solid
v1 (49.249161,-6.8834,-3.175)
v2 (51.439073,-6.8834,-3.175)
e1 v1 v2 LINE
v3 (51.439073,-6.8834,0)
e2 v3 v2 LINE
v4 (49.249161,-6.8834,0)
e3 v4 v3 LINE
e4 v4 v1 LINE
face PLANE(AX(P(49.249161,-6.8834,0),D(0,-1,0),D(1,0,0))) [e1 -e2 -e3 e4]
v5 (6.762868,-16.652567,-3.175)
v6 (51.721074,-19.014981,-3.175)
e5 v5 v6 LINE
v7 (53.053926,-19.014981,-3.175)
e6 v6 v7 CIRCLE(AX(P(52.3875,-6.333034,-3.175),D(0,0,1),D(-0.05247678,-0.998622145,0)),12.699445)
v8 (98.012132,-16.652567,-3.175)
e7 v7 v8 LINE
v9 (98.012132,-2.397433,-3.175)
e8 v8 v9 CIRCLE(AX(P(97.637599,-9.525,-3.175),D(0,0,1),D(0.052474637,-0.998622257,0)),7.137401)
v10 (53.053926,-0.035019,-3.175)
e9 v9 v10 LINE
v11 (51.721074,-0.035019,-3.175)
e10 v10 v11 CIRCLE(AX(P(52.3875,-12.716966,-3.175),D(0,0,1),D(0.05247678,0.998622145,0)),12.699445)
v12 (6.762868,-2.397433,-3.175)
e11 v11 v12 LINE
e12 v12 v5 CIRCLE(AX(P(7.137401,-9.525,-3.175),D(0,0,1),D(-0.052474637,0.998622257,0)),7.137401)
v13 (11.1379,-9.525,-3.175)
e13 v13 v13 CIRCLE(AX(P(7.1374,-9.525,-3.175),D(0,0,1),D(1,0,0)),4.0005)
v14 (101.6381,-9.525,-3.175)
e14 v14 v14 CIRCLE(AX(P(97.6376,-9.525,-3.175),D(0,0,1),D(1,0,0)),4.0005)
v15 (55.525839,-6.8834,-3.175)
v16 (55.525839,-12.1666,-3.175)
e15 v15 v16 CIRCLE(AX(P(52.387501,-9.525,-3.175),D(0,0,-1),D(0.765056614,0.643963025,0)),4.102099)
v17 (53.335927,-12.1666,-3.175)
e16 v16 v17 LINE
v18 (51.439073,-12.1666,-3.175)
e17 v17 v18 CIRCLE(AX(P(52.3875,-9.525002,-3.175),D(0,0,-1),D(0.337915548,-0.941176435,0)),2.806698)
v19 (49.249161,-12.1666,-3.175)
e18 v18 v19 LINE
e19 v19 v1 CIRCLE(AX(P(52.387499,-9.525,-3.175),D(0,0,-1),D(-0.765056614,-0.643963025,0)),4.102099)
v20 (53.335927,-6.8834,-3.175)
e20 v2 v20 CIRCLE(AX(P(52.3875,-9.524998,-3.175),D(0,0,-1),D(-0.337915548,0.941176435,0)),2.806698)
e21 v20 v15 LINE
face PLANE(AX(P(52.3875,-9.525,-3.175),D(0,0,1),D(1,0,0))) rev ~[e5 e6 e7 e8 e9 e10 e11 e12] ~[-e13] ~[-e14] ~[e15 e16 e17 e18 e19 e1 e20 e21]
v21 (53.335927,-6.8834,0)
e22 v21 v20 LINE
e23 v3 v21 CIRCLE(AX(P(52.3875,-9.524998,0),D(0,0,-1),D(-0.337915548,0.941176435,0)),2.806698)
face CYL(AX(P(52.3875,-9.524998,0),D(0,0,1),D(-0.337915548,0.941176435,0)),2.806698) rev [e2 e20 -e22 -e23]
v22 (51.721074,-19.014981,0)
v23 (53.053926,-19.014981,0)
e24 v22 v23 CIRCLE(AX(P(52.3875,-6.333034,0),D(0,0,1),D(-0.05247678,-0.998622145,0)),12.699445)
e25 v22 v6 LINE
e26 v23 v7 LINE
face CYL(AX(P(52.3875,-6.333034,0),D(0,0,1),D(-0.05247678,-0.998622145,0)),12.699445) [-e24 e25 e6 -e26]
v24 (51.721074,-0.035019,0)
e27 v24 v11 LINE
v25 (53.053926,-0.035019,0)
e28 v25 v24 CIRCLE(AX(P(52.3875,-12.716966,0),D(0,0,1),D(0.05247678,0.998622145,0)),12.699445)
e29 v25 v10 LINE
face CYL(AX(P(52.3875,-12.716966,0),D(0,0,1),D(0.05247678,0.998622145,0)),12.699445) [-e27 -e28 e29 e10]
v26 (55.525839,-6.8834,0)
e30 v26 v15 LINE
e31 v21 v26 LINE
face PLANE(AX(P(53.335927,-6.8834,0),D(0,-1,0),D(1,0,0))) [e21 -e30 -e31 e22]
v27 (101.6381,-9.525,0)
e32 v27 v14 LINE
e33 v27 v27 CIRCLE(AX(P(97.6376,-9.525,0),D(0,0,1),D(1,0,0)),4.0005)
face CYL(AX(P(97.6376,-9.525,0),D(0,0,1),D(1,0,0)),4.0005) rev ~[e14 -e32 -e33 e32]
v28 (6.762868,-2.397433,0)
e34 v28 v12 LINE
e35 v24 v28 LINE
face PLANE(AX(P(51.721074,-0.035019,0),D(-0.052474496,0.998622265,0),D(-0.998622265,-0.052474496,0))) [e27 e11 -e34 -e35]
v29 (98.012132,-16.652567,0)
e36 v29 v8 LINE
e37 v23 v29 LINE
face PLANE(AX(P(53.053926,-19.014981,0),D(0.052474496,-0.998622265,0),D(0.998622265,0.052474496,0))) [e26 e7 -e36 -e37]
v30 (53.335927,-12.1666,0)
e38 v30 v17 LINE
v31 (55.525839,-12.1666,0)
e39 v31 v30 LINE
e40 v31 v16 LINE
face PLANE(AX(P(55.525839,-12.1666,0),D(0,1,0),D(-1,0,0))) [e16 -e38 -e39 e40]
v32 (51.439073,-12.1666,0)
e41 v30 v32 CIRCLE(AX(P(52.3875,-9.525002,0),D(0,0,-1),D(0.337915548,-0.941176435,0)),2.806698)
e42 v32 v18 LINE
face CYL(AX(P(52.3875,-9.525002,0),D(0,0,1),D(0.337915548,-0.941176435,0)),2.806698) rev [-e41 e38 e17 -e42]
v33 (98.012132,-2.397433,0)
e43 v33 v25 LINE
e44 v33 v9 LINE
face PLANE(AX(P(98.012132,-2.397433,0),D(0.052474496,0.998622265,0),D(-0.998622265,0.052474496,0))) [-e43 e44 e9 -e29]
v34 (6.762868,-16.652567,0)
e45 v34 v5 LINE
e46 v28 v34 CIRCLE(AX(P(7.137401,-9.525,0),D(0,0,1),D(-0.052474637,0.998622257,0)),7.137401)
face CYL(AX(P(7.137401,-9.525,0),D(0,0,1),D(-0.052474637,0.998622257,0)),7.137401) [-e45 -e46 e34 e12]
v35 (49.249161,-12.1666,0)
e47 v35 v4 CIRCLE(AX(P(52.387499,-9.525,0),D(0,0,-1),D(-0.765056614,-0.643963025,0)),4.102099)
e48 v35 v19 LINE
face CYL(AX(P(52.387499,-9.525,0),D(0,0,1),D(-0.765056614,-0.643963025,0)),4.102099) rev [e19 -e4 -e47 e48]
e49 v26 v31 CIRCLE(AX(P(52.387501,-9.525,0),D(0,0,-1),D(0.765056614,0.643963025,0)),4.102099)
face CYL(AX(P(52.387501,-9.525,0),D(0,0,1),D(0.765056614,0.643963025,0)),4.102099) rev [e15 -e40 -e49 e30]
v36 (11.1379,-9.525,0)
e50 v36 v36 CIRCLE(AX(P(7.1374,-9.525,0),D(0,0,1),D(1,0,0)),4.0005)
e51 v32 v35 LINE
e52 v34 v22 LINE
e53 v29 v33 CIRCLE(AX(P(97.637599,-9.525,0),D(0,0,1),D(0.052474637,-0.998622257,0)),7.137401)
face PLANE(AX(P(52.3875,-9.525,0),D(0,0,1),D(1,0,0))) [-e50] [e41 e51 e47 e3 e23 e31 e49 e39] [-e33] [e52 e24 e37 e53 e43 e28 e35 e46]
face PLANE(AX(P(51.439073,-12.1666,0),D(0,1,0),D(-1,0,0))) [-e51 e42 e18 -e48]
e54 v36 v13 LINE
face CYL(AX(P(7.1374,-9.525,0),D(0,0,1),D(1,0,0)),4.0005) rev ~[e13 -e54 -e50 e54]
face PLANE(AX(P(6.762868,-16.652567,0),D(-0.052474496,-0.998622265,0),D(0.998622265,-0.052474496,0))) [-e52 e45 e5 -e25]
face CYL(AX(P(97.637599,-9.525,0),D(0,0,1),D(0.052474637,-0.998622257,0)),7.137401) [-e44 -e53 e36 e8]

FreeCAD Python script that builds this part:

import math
import FreeCAD as App
import Part
import Sketcher
Q = App.Units.Quantity

doc = App.newDocument("Part")
body = doc.addObject("PartDesign::Body", "Body")

# Sketch on XY plane
sketch1 = doc.addObject("Sketcher::SketchObject", "Sketch")
body.addObject(sketch1)
sketch1.AttachmentSupport = (doc.XY_Plane, [""])
sketch1.MapMode = "FlatFace"
sketch1.addGeometry(Part.LineSegment(App.Vector(51.7, 0, 0), App.Vector(6.8, -2.4, 0)), False)
sketch1.addGeometry(Part.ArcOfCircle(Part.Circle(App.Vector(7.1, -9.5, 0), App.Vector(0, 0, 1), 7.1), math.radians(93), math.radians(267)), False)
sketch1.addGeometry(Part.LineSegment(App.Vector(6.8, -16.7, 0), App.Vector(51.7, -19, 0)), False)
sketch1.addGeometry(Part.ArcOfCircle(Part.Circle(App.Vector(52.4, -6.3, 0), App.Vector(0, 0, 1), 12.7), math.radians(-93.01), math.radians(-86.99)), False)
sketch1.addGeometry(Part.LineSegment(App.Vector(53.1, -19, 0), App.Vector(98, -16.7, 0)), False)
sketch1.addGeometry(Part.ArcOfCircle(Part.Circle(App.Vector(97.6, -9.5, 0), App.Vector(0, 0, 1), 7.1), math.radians(-87), math.radians(87)), False)
sketch1.addGeometry(Part.LineSegment(App.Vector(98, -2.4, 0), App.Vector(53.1, 0, 0)), False)
sketch1.addGeometry(Part.ArcOfCircle(Part.Circle(App.Vector(52.4, -12.7, 0), App.Vector(0, 0, 1), 12.7), math.radians(86.99), math.radians(93.01)), False)
sketch1.addGeometry(Part.Circle(App.Vector(7.1, -9.5, 0), App.Vector(0, 0, 1), 4), False)
sketch1.addGeometry(Part.LineSegment(App.Vector(51.4, -12.2, 0), App.Vector(49.2, -12.2, 0)), False)
sketch1.addGeometry(Part.ArcOfCircle(Part.Circle(App.Vector(52.4, -9.5, 0), App.Vector(0, 0, 1), 4.1), math.radians(140), math.radians(220)), False)
sketch1.addGeometry(Part.LineSegment(App.Vector(49.2, -6.9, 0), App.Vector(51.4, -6.9, 0)), False)
sketch1.addGeometry(Part.ArcOfCircle(Part.Circle(App.Vector(52.4, -9.5, 0), App.Vector(0, 0, 1), 2.8), math.radians(70), math.radians(110)), False)
sketch1.addGeometry(Part.LineSegment(App.Vector(53.3, -6.9, 0), App.Vector(55.5, -6.9, 0)), False)
sketch1.addGeometry(Part.ArcOfCircle(Part.Circle(App.Vector(52.4, -9.5, 0), App.Vector(0, 0, 1), 4.1), math.radians(-40), math.radians(40)), False)
sketch1.addGeometry(Part.LineSegment(App.Vector(55.5, -12.2, 0), App.Vector(53.3, -12.2, 0)), False)
sketch1.addGeometry(Part.ArcOfCircle(Part.Circle(App.Vector(52.4, -9.5, 0), App.Vector(0, 0, 1), 2.8), math.radians(-110), math.radians(-70)), False)
sketch1.addGeometry(Part.Circle(App.Vector(97.6, -9.5, 0), App.Vector(0, 0, 1), 4), False)
sketch1.addConstraint(Sketcher.Constraint("Tangent", 0, 2, 1, 1))
sketch1.addConstraint(Sketcher.Constraint("Tangent", 1, 2, 2, 1))
sketch1.addConstraint(Sketcher.Constraint("Coincident", 2, 2, 3, 1))
sketch1.addConstraint(Sketcher.Constraint("Coincident", 3, 2, 4, 1))
sketch1.addConstraint(Sketcher.Constraint("Tangent", 4, 2, 5, 1))
sketch1.addConstraint(Sketcher.Constraint("Tangent", 5, 2, 6, 1))
sketch1.addConstraint(Sketcher.Constraint("Coincident", 6, 2, 7, 1))
sketch1.addConstraint(Sketcher.Constraint("Coincident", 7, 2, 0, 1))
sketch1.addConstraint(Sketcher.Constraint("Coincident", 9, 2, 10, 2))
sketch1.addConstraint(Sketcher.Constraint("Coincident", 10, 1, 11, 1))
sketch1.addConstraint(Sketcher.Constraint("Coincident", 11, 2, 12, 2))
sketch1.addConstraint(Sketcher.Constraint("Coincident", 12, 1, 13, 1))
sketch1.addConstraint(Sketcher.Constraint("Coincident", 13, 2, 14, 2))
sketch1.addConstraint(Sketcher.Constraint("Coincident", 14, 1, 15, 1))
sketch1.addConstraint(Sketcher.Constraint("Coincident", 15, 2, 16, 2))
sketch1.addConstraint(Sketcher.Constraint("Coincident", 16, 1, 9, 1))
sketch1.addConstraint(Sketcher.Constraint("Horizontal", 9))
sketch1.addConstraint(Sketcher.Constraint("Horizontal", 11))
sketch1.addConstraint(Sketcher.Constraint("Horizontal", 13))
sketch1.addConstraint(Sketcher.Constraint("Horizontal", 15))
sketch1.addConstraint(Sketcher.Constraint("Coincident", 8, 3, 1, 3))
sketch1.addConstraint(Sketcher.Constraint("Coincident", 12, 3, 10, 3))
sketch1.addConstraint(Sketcher.Constraint("Coincident", 14, 3, 10, 3))
sketch1.addConstraint(Sketcher.Constraint("Coincident", 16, 3, 10, 3))
sketch1.addConstraint(Sketcher.Constraint("Coincident", 17, 3, 5, 3))
sketch1.addConstraint(Sketcher.Constraint("Equal", 1, 5))
sketch1.addConstraint(Sketcher.Constraint("Equal", 3, 7))
sketch1.addConstraint(Sketcher.Constraint("Equal", 10, 14))
sketch1.addConstraint(Sketcher.Constraint("Equal", 12, 16))
sketch1.addConstraint(Sketcher.Constraint("Equal", 8, 17))
sketch1.addConstraint(Sketcher.Constraint("Parallel", 0, 4))
sketch1.addConstraint(Sketcher.Constraint("Parallel", 2, 6))
sketch1.addConstraint(Sketcher.Constraint("Horizontal", 1, 3, 5, 3))
sketch1.addConstraint(Sketcher.Constraint("Horizontal", 8, 3, 10, 3))
sketch1.addConstraint(Sketcher.Constraint("Horizontal", 2, 2, 3, 2))
sketch1.addConstraint(Sketcher.Constraint("Horizontal", 6, 2, 7, 2))
sketch1.addConstraint(Sketcher.Constraint("Horizontal", 11, 2, 12, 1))
sketch1.addConstraint(Sketcher.Constraint("Horizontal", 9, 2, 14, 1))
sketch1.addConstraint(Sketcher.Constraint("Vertical", 3, 3, 7, 3))
sketch1.addConstraint(Sketcher.Constraint("Vertical", 7, 3, 10, 3))
sketch1.addConstraint(Sketcher.Constraint("Vertical", 3, 2, 6, 2))
sketch1.addConstraint(Sketcher.Constraint("Vertical", 9, 2, 10, 1))
sketch1.addConstraint(Sketcher.Constraint("Diameter", 8, Q("0.315 in")))
sketch1.addConstraint(Sketcher.Constraint("Radius", 1, Q("0.281 in")))
sketch1.addConstraint(Sketcher.Constraint("Radius", 10, Q("0.1615 in")))
sketch1.addConstraint(Sketcher.Constraint("Radius", 12, Q("0.1104999 in")))
sketch1.addConstraint(Sketcher.Constraint("DistanceX", -1, 1, 1, 3, Q("0.281 in")))
sketch1.addConstraint(Sketcher.Constraint("DistanceY", 1, 3, -1, 1, Q("0.375 in")))
sketch1.addConstraint(Sketcher.Constraint("DistanceX", -1, 1, 3, 3, Q("2.0625 in")))
sketch1.addConstraint(Sketcher.Constraint("DistanceY", 9, 2, -1, 1, Q("0.479 in")))
sketch1.addConstraint(Sketcher.Constraint("Radius", 3, Q("12.699445 mm")))
sketch1.addConstraint(Sketcher.Constraint("DistanceY", 3, 3, 0, 2, Q("3.935601 mm")))
sketch1.addConstraint(Sketcher.Constraint("Distance", 0, Q("45.020232 mm")))
pad1 = doc.addObject("PartDesign::Pad", "Pad")
body.addObject(pad1)
pad1.Profile = sketch1
pad1.Length = Q("0.125 in")
pad1.Reversed = True

doc.recompute()
